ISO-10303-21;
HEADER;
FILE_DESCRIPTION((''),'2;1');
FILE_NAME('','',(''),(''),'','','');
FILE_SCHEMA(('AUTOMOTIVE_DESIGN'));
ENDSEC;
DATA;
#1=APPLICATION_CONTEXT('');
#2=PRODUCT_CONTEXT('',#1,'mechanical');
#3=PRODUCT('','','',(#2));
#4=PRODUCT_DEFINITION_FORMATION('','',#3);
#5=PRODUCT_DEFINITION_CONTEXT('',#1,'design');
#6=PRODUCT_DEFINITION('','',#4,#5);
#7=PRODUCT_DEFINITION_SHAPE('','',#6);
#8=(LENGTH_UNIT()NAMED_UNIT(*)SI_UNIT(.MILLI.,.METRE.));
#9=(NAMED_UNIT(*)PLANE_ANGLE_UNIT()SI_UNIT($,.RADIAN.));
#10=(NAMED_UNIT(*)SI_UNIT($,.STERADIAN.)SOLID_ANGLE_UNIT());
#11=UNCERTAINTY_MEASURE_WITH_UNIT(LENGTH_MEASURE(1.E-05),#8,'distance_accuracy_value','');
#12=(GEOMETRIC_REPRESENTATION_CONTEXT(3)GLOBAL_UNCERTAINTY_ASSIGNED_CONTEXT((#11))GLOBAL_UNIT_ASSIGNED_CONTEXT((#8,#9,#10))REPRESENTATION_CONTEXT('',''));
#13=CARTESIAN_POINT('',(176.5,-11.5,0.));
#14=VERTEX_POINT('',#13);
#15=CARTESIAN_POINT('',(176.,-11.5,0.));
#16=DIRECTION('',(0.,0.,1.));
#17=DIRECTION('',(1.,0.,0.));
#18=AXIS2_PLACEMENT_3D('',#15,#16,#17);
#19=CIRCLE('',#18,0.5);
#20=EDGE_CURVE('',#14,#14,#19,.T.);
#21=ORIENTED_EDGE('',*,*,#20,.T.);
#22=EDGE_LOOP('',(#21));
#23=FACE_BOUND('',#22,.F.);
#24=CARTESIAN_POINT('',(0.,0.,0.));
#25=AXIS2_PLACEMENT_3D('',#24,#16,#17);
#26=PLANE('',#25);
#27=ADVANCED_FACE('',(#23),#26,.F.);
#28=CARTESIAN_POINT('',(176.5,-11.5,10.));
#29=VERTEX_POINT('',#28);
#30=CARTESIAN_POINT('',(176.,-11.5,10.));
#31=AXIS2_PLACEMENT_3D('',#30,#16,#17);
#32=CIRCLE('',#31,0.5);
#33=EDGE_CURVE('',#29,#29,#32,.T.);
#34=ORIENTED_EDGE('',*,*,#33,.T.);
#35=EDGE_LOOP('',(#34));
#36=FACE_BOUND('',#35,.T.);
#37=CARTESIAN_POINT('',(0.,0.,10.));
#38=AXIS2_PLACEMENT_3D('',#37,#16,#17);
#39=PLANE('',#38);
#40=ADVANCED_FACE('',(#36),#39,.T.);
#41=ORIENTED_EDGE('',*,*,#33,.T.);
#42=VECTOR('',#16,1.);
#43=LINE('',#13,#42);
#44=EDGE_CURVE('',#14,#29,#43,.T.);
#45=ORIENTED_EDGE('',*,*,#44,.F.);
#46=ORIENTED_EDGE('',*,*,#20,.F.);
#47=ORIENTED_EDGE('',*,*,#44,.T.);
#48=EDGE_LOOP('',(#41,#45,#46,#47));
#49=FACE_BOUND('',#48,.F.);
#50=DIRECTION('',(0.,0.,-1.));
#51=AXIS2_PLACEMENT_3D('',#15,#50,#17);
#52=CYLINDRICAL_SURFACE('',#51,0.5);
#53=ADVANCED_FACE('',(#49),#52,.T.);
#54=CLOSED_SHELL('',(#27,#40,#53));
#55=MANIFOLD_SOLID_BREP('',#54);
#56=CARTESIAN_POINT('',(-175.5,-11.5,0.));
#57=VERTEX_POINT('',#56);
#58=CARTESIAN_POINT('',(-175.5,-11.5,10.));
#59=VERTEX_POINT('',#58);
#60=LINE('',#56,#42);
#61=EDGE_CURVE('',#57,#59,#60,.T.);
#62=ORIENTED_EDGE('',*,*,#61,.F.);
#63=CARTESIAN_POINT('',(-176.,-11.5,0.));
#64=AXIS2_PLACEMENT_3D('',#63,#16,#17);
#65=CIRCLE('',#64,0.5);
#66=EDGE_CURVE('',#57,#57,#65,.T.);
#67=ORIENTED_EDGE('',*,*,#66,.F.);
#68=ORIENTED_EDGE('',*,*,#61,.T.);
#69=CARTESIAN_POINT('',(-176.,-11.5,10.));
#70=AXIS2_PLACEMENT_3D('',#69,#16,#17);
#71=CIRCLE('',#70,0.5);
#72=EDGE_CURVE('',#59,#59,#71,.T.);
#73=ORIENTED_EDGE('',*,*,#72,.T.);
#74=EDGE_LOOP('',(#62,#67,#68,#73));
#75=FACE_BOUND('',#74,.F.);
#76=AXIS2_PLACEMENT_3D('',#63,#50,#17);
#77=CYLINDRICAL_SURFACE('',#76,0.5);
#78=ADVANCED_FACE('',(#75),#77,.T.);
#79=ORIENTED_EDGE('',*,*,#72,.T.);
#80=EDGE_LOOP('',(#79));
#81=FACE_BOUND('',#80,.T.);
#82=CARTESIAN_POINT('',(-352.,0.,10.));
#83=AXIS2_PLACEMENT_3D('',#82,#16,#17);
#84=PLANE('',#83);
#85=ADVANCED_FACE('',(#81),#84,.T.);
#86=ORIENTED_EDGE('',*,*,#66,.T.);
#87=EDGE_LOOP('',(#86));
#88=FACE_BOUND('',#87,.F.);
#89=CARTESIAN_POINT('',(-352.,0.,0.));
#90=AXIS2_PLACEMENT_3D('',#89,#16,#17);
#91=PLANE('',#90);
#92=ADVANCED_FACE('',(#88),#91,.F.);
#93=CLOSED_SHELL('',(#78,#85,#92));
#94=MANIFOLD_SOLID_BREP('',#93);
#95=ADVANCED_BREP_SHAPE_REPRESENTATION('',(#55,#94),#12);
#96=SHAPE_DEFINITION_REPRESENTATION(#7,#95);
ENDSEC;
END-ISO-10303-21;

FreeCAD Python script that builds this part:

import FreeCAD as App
import Part
import Sketcher
from FreeCAD import Vector

doc = App.newDocument("Part")
body = doc.addObject("PartDesign::Body", "Body")
body.AllowCompound = True

# Sketch on XY plane
sketch1 = doc.addObject("Sketcher::SketchObject", "Sketch")
body.addObject(sketch1)
sketch1.AttachmentSupport = (doc.XY_Plane, [""])
sketch1.MapMode = "FlatFace"
sketch1.addGeometry(Part.Circle(Vector(176, -11.5, 0), Vector(0, 0, 1), 0.5), False)
sketch1.addConstraint(Sketcher.Constraint("Diameter", 0, 1.0))
sketch1.addConstraint(Sketcher.Constraint("DistanceX", -1, 1, 0, 3, 176.0))
sketch1.addConstraint(Sketcher.Constraint("DistanceY", 0, 3, -1, 1, 11.5))
pad1 = doc.addObject("PartDesign::Pad", "Pad")
body.addObject(pad1)
pad1.Profile = sketch1
pad1.Length = 10
doc.recompute()

linearpattern = doc.addObject("PartDesign::LinearPattern", "LinearPattern")
body.addObject(linearpattern)
linearpattern.Originals = [pad1]
linearpattern.Direction = (doc.X_Axis, [""])
linearpattern.Mode = "offset"
linearpattern.Offset = 352
linearpattern.Occurrences = 2
linearpattern.Reversed = True
body.Tip = linearpattern

doc.recompute()
